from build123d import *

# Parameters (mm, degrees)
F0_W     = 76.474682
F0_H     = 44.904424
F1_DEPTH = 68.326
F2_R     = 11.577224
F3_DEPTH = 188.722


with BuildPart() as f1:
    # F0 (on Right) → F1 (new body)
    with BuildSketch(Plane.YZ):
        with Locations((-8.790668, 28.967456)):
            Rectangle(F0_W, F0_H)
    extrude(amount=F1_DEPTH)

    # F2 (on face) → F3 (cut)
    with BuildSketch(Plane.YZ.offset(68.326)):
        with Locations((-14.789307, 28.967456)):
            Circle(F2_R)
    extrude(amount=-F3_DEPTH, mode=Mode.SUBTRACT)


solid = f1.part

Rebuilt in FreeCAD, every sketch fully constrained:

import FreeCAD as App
import Part
import Sketcher
Q = App.Units.Quantity


def add_polygon(sketch, points):
    """Adds a closed chain of lines whose ends are joined by coincident constraints."""
    first, n = sketch.GeometryCount, len(points)
    for a, b in zip(points, points[1:] + points[:1]):
        sketch.addGeometry(Part.LineSegment(App.Vector(*a, 0), App.Vector(*b, 0)), False)
    for i in range(n):
        sketch.addConstraint(Sketcher.Constraint("Coincident", first + i, 2, first + (i + 1) % n, 1))

doc = App.newDocument("Part")
body = doc.addObject("PartDesign::Body", "Body")

sketch1 = doc.addObject("Sketcher::SketchObject", "Sketch")
body.addObject(sketch1)
sketch1.AttachmentSupport = (doc.YZ_Plane, [""])
sketch1.MapMode = "FlatFace"
add_polygon(sketch1, [(-47.028009, 51.419668), (-47.028009, 6.515244), (29.446673, 6.515244), (29.446673, 51.419668)])
sketch1.addConstraint([
    Sketcher.Constraint("Vertical", 0),
    Sketcher.Constraint("Horizontal", 1),
    Sketcher.Constraint("Vertical", 2),
    Sketcher.Constraint("Horizontal", 3),
    Sketcher.Constraint("DistanceX", 1, 1, 1, 2, Q("76.474682 mm")),
    Sketcher.Constraint("DistanceY", 0, 2, 0, 1, Q("44.904424 mm")),
    Sketcher.Constraint("DistanceX", 0, 2, -1, 1, Q("47.028009 mm")),
    Sketcher.Constraint("DistanceY", -1, 1, 0, 2, Q("6.515244 mm")),
])
pad1 = doc.addObject("PartDesign::Pad", "Pad")
body.addObject(pad1)
pad1.Profile = sketch1
pad1.Length = Q("2.69 in")

sketch2 = doc.addObject("Sketcher::SketchObject", "Sketch001")
body.addObject(sketch2)
sketch2.AttachmentSupport = (doc.YZ_Plane, [""])
sketch2.MapMode = "FlatFace"
sketch2.AttachmentOffset = App.Placement(App.Vector(0, 0, 2.69 * 25.4), App.Rotation())
sketch2.addGeometry(Part.Circle(App.Vector(-14.789307, 28.967456, 0), App.Vector(0, 0, 1), 11.577224), False)
sketch2.addConstraint([
    Sketcher.Constraint("Diameter", 0, Q("23.154448 mm")),
    Sketcher.Constraint("DistanceX", 0, 3, -1, 1, Q("14.789307 mm")),
    Sketcher.Constraint("DistanceY", -1, 1, 0, 3, Q("28.967456 mm")),
])
pocket1 = doc.addObject("PartDesign::Pocket", "Pocket")
body.addObject(pocket1)
pocket1.Profile = sketch2
pocket1.Length = Q("7.43 in")

doc.recompute()
